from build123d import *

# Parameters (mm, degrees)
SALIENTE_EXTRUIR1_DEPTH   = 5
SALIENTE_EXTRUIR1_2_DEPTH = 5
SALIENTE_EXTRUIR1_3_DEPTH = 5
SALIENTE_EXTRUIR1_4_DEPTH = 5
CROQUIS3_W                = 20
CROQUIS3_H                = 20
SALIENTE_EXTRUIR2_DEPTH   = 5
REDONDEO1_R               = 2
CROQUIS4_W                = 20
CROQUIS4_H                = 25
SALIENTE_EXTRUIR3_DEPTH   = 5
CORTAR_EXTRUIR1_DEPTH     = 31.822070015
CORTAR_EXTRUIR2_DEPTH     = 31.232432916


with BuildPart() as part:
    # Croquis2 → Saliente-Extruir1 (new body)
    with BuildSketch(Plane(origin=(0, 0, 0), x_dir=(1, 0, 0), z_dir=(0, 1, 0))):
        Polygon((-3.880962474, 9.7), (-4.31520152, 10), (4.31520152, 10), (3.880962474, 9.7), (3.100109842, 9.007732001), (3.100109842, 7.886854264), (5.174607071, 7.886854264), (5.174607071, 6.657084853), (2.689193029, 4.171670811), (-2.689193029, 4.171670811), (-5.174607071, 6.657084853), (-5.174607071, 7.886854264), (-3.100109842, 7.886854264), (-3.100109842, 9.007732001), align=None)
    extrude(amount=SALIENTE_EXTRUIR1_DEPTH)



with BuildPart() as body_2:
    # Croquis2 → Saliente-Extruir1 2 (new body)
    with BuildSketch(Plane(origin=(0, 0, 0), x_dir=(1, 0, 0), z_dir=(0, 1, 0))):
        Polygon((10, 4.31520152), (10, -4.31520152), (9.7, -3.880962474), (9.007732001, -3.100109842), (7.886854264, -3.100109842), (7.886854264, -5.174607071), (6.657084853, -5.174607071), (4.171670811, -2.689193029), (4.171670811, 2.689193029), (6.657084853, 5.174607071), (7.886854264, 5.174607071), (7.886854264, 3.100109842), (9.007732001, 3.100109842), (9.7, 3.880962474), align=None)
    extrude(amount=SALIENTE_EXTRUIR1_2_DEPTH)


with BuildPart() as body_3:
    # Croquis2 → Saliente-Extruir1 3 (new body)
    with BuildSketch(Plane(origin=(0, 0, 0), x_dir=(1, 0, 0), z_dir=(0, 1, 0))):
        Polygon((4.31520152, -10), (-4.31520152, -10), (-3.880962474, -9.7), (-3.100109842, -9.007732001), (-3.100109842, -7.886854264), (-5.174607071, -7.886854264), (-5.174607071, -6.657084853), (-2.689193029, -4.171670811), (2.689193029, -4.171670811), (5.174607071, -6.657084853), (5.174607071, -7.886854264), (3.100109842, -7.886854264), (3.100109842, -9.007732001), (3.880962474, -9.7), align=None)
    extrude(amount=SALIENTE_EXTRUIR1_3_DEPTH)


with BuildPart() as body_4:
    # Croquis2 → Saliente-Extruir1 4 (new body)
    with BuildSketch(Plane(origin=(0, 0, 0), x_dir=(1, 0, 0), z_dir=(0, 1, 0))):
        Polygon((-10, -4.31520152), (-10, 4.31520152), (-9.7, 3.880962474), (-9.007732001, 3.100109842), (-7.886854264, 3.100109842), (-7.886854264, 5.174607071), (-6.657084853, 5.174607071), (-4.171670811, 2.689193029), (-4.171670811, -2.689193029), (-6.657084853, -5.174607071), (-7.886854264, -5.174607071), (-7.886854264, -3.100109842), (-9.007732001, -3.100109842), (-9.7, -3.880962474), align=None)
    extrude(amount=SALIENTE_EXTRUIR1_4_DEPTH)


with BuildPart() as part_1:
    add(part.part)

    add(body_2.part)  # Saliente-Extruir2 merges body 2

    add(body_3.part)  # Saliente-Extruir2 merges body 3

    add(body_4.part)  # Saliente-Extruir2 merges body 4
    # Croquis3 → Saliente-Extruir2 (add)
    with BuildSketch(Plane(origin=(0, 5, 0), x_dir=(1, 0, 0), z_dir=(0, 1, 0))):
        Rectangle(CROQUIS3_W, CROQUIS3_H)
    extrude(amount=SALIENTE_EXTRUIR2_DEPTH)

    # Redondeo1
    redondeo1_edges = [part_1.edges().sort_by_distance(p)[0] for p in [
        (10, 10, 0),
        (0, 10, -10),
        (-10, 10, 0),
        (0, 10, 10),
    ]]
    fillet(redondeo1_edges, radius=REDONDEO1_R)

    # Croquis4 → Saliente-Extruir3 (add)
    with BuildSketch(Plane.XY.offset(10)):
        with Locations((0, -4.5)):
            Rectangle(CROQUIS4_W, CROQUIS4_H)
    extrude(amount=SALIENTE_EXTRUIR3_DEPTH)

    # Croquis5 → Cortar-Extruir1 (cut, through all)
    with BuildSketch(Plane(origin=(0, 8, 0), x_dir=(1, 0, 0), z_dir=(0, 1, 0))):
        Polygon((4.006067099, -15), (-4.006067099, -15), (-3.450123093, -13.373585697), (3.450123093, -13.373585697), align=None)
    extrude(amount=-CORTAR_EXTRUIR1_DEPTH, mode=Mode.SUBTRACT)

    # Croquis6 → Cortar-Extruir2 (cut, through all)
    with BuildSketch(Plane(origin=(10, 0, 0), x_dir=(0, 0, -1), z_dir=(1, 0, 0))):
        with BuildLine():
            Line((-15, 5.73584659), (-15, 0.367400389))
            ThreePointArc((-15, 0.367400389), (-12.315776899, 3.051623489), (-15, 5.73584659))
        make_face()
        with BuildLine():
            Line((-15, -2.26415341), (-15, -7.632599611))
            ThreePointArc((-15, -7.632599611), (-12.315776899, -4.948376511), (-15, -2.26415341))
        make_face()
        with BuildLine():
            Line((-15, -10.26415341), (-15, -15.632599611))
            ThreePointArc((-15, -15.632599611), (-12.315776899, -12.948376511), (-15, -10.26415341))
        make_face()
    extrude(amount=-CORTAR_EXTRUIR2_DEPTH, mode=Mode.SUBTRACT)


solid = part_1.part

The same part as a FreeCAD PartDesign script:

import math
import FreeCAD as App
import Part
import Sketcher

V = App.Vector
Q = App.Units.Quantity


def edges_at(feature, points):
    """Names of the edges that pass closest to the given points."""
    edges = feature.Shape.Edges
    near = lambda p: min(range(len(edges)), key=lambda i: edges[i].distToShape(Part.Vertex(*p))[0])
    return sorted({f"Edge{near(p) + 1}" for p in points})

doc = App.newDocument("Part")
params = doc.addObject("Spreadsheet::Sheet", "Params")
for row, (alias, value) in enumerate([
    ("pad1_length", "5 mm"),
    ("pad2_length", "5 mm"),
    ("pad3_length", "5 mm"),
    ("pad4_length", "5 mm"),
    ("sketch5_width", "20 mm"),
    ("pad5_length", "5 mm"),
    ("fillet_radius", "2 mm"),
    ("sketch6_width", "20 mm"),
    ("sketch6_height", "25 mm"),
    ("pad6_length", "5 mm"),
], start=1):
    params.set(f"A{row}", alias)
    params.set(f"B{row}", "=" + value)
    params.setAlias(f"B{row}", alias)

body = doc.addObject("PartDesign::Body", "Body")

# Sketch on XZ plane
sketch1 = body.newObject("Sketcher::SketchObject", "Sketch")
sketch1.AttachmentSupport = (doc.getObject("XZ_Plane"), [""])
sketch1.MapMode = "FlatFace"
sketch1.addGeometry(Part.LineSegment(V(-4.315202, -10, 0), V(-3.880962, -9.7, 0)), False)
sketch1.addGeometry(Part.LineSegment(V(-3.880962, -9.7, 0), V(-3.10011, -9.007732, 0)), False)
sketch1.addGeometry(Part.LineSegment(V(-3.10011, -9.007732, 0), V(-3.10011, -7.886854, 0)), False)
sketch1.addGeometry(Part.LineSegment(V(-3.10011, -7.886854, 0), V(-5.174607, -7.886854, 0)), False)
sketch1.addGeometry(Part.LineSegment(V(-5.174607, -7.886854, 0), V(-5.174607, -6.657085, 0)), False)
sketch1.addGeometry(Part.LineSegment(V(-5.174607, -6.657085, 0), V(-2.689193, -4.171671, 0)), False)
sketch1.addGeometry(Part.LineSegment(V(-2.689193, -4.171671, 0), V(2.689193, -4.171671, 0)), False)
sketch1.addGeometry(Part.LineSegment(V(2.689193, -4.171671, 0), V(5.174607, -6.657085, 0)), False)
sketch1.addGeometry(Part.LineSegment(V(5.174607, -6.657085, 0), V(5.174607, -7.886854, 0)), False)
sketch1.addGeometry(Part.LineSegment(V(5.174607, -7.886854, 0), V(3.10011, -7.886854, 0)), False)
sketch1.addGeometry(Part.LineSegment(V(3.10011, -7.886854, 0), V(3.10011, -9.007732, 0)), False)
sketch1.addGeometry(Part.LineSegment(V(3.10011, -9.007732, 0), V(3.880962, -9.7, 0)), False)
sketch1.addGeometry(Part.LineSegment(V(3.880962, -9.7, 0), V(4.315202, -10, 0)), False)
sketch1.addGeometry(Part.LineSegment(V(4.315202, -10, 0), V(-4.315202, -10, 0)), False)
sketch1.addConstraint(Sketcher.Constraint("Coincident", 0, 2, 1, 1))
sketch1.addConstraint(Sketcher.Constraint("Coincident", 1, 2, 2, 1))
sketch1.addConstraint(Sketcher.Constraint("Coincident", 2, 2, 3, 1))
sketch1.addConstraint(Sketcher.Constraint("Coincident", 3, 2, 4, 1))
sketch1.addConstraint(Sketcher.Constraint("Coincident", 4, 2, 5, 1))
sketch1.addConstraint(Sketcher.Constraint("Coincident", 5, 2, 6, 1))
sketch1.addConstraint(Sketcher.Constraint("Coincident", 6, 2, 7, 1))
sketch1.addConstraint(Sketcher.Constraint("Coincident", 7, 2, 8, 1))
sketch1.addConstraint(Sketcher.Constraint("Coincident", 8, 2, 9, 1))
sketch1.addConstraint(Sketcher.Constraint("Coincident", 9, 2, 10, 1))
sketch1.addConstraint(Sketcher.Constraint("Coincident", 10, 2, 11, 1))
sketch1.addConstraint(Sketcher.Constraint("Coincident", 11, 2, 12, 1))
sketch1.addConstraint(Sketcher.Constraint("Coincident", 12, 2, 13, 1))
sketch1.addConstraint(Sketcher.Constraint("Coincident", 13, 2, 0, 1))
sketch1.addConstraint(Sketcher.Constraint("Vertical", 2))
sketch1.addConstraint(Sketcher.Constraint("Horizontal", 3))
sketch1.addConstraint(Sketcher.Constraint("Vertical", 4))
sketch1.addConstraint(Sketcher.Constraint("Horizontal", 6))
sketch1.addConstraint(Sketcher.Constraint("Vertical", 8))
sketch1.addConstraint(Sketcher.Constraint("Horizontal", 9))
sketch1.addConstraint(Sketcher.Constraint("Vertical", 10))
sketch1.addConstraint(Sketcher.Constraint("Horizontal", 13))
sketch1.addConstraint(Sketcher.Constraint("Symmetric", 4, 2, 7, 2, -2))
sketch1.addConstraint(Sketcher.Constraint("Symmetric", 2, 2, 9, 2, -2))
sketch1.addConstraint(Sketcher.Constraint("Symmetric", 0, 2, 11, 2, -2))
sketch1.addConstraint(Sketcher.Constraint("Perpendicular", 5, 7))
sketch1.addConstraint(Sketcher.Constraint("Horizontal", 1, 2, 10, 2))
sketch1.addConstraint(Sketcher.Constraint("Equal", 5, 7))
sketch1.addConstraint(Sketcher.Constraint("Equal", 0, 12))
sketch1.addConstraint(Sketcher.Constraint("DistanceY", 12, 2, -1, 1, Q("10 mm")))
sketch1.addConstraint(Sketcher.Constraint("DistanceY", 0, 2, -1, 1, Q("9.7 mm")))
sketch1.addConstraint(Sketcher.Constraint("DistanceY", 4, 1, 4, 2, Q("1.229769 mm")))
sketch1.addConstraint(Sketcher.Constraint("DistanceX", -1, 1, 12, 2, Q("4.315202 mm")))
sketch1.addConstraint(Sketcher.Constraint("DistanceX", 4, 2, 6, 2, Q("7.8638 mm")))
sketch1.addConstraint(Sketcher.Constraint("Distance", 0, Q("0.527791 mm")))
sketch1.addConstraint(Sketcher.Constraint("DistanceX", 3, 2, 3, 1, Q("2.074497 mm")))
sketch1.addConstraint(Sketcher.Constraint("DistanceX", 6, 1, 6, 2, Q("5.378386 mm")))
sketch1.addConstraint(Sketcher.Constraint("DistanceY", 2, 1, 2, 2, Q("1.120878 mm")))
sketch1.addConstraint(Sketcher.Constraint("DistanceY", 5, 2, -1, 1, Q("4.171671 mm")))
pad1 = body.newObject("PartDesign::Pad", "Pad")
pad1.Profile = sketch1
pad1.setExpression("Length", "Params.pad1_length")
pad1.Reversed = True
body2 = doc.addObject("PartDesign::Body", "Body001")

# Sketch on XZ plane
sketch2 = body2.newObject("Sketcher::SketchObject", "Sketch001")
sketch2.AttachmentSupport = (doc.getObject("XZ_Plane001"), [""])
sketch2.MapMode = "FlatFace"
sketch2.addGeometry(Part.LineSegment(V(10, 4.315202, 0), V(10, -4.315202, 0)), False)
sketch2.addGeometry(Part.LineSegment(V(10, -4.315202, 0), V(9.7, -3.880962, 0)), False)
sketch2.addGeometry(Part.LineSegment(V(9.7, -3.880962, 0), V(9.007732, -3.10011, 0)), False)
sketch2.addGeometry(Part.LineSegment(V(9.007732, -3.10011, 0), V(7.886854, -3.10011, 0)), False)
sketch2.addGeometry(Part.LineSegment(V(7.886854, -3.10011, 0), V(7.886854, -5.174607, 0)), False)
sketch2.addGeometry(Part.LineSegment(V(7.886854, -5.174607, 0), V(6.657085, -5.174607, 0)), False)
sketch2.addGeometry(Part.LineSegment(V(6.657085, -5.174607, 0), V(4.171671, -2.689193, 0)), False)
sketch2.addGeometry(Part.LineSegment(V(4.171671, -2.689193, 0), V(4.171671, 2.689193, 0)), False)
sketch2.addGeometry(Part.LineSegment(V(4.171671, 2.689193, 0), V(6.657085, 5.174607, 0)), False)
sketch2.addGeometry(Part.LineSegment(V(6.657085, 5.174607, 0), V(7.886854, 5.174607, 0)), False)
sketch2.addGeometry(Part.LineSegment(V(7.886854, 5.174607, 0), V(7.886854, 3.10011, 0)), False)
sketch2.addGeometry(Part.LineSegment(V(7.886854, 3.10011, 0), V(9.007732, 3.10011, 0)), False)
sketch2.addGeometry(Part.LineSegment(V(9.007732, 3.10011, 0), V(9.7, 3.880962, 0)), False)
sketch2.addGeometry(Part.LineSegment(V(9.7, 3.880962, 0), V(10, 4.315202, 0)), False)
sketch2.addConstraint(Sketcher.Constraint("Coincident", 0, 2, 1, 1))
sketch2.addConstraint(Sketcher.Constraint("Coincident", 1, 2, 2, 1))
sketch2.addConstraint(Sketcher.Constraint("Coincident", 2, 2, 3, 1))
sketch2.addConstraint(Sketcher.Constraint("Coincident", 3, 2, 4, 1))
sketch2.addConstraint(Sketcher.Constraint("Coincident", 4, 2, 5, 1))
sketch2.addConstraint(Sketcher.Constraint("Coincident", 5, 2, 6, 1))
sketch2.addConstraint(Sketcher.Constraint("Coincident", 6, 2, 7, 1))
sketch2.addConstraint(Sketcher.Constraint("Coincident", 7, 2, 8, 1))
sketch2.addConstraint(Sketcher.Constraint("Coincident", 8, 2, 9, 1))
sketch2.addConstraint(Sketcher.Constraint("Coincident", 9, 2, 10, 1))
sketch2.addConstraint(Sketcher.Constraint("Coincident", 10, 2, 11, 1))
sketch2.addConstraint(Sketcher.Constraint("Coincident", 11, 2, 12, 1))
sketch2.addConstraint(Sketcher.Constraint("Coincident", 12, 2, 13, 1))
sketch2.addConstraint(Sketcher.Constraint("Coincident", 13, 2, 0, 1))
sketch2.addConstraint(Sketcher.Constraint("Vertical", 0))
sketch2.addConstraint(Sketcher.Constraint("Horizontal", 3))
sketch2.addConstraint(Sketcher.Constraint("Vertical", 4))
sketch2.addConstraint(Sketcher.Constraint("Horizontal", 5))
sketch2.addConstraint(Sketcher.Constraint("Vertical", 7))
sketch2.addConstraint(Sketcher.Constraint("Horizontal", 9))
sketch2.addConstraint(Sketcher.Constraint("Vertical", 10))
sketch2.addConstraint(Sketcher.Constraint("Horizontal", 11))
sketch2.addConstraint(Sketcher.Constraint("Symmetric", 5, 2, 8, 2, -1))
sketch2.addConstraint(Sketcher.Constraint("Symmetric", 3, 2, 10, 2, -1))
sketch2.addConstraint(Sketcher.Constraint("Symmetric", 1, 2, 12, 2, -1))
sketch2.addConstraint(Sketcher.Constraint("Perpendicular", 6, 8))
sketch2.addConstraint(Sketcher.Constraint("Vertical", 2, 2, 11, 2))
sketch2.addConstraint(Sketcher.Constraint("Equal", 6, 8))
sketch2.addConstraint(Sketcher.Constraint("Equal", 1, 13))
sketch2.addConstraint(Sketcher.Constraint("DistanceX", -1, 1, 0, 2, Q("10 mm")))
sketch2.addConstraint(Sketcher.Constraint("DistanceX", -1, 1, 1, 2, Q("9.7 mm")))
sketch2.addConstraint(Sketcher.Constraint("DistanceX", 5, 2, 5, 1, Q("1.229769 mm")))
sketch2.addConstraint(Sketcher.Constraint("DistanceY", 0, 2, -1, 1, Q("4.315202 mm")))
sketch2.addConstraint(Sketcher.Constraint("DistanceY", 5, 2, 7, 2, Q("7.8638 mm")))
sketch2.addConstraint(Sketcher.Constraint("Distance", 1, Q("0.527791 mm")))
sketch2.addConstraint(Sketcher.Constraint("DistanceX", 3, 2, 3, 1, Q("1.120878 mm")))
sketch2.addConstraint(Sketcher.Constraint("DistanceY", 4, 2, 4, 1, Q("2.074497 mm")))
sketch2.addConstraint(Sketcher.Constraint("DistanceY", 7, 1, 7, 2, Q("5.378386 mm")))
sketch2.addConstraint(Sketcher.Constraint("DistanceX", -1, 1, 6, 2, Q("4.171671 mm")))
pad2 = body2.newObject("PartDesign::Pad", "Pad001")
pad2.Profile = sketch2
pad2.setExpression("Length", "Params.pad2_length")
pad2.Reversed = True
body3 = doc.addObject("PartDesign::Body", "Body002")

# Sketch on XZ plane
sketch3 = body3.newObject("Sketcher::SketchObject", "Sketch002")
sketch3.AttachmentSupport = (doc.getObject("XZ_Plane002"), [""])
sketch3.MapMode = "FlatFace"
sketch3.addGeometry(Part.LineSegment(V(-4.315202, 10, 0), V(4.315202, 10, 0)), False)
sketch3.addGeometry(Part.LineSegment(V(4.315202, 10, 0), V(3.880962, 9.7, 0)), False)
sketch3.addGeometry(Part.LineSegment(V(3.880962, 9.7, 0), V(3.10011, 9.007732, 0)), False)
sketch3.addGeometry(Part.LineSegment(V(3.10011, 9.007732, 0), V(3.10011, 7.886854, 0)), False)
sketch3.addGeometry(Part.LineSegment(V(3.10011, 7.886854, 0), V(5.174607, 7.886854, 0)), False)
sketch3.addGeometry(Part.LineSegment(V(5.174607, 7.886854, 0), V(5.174607, 6.657085, 0)), False)
sketch3.addGeometry(Part.LineSegment(V(5.174607, 6.657085, 0), V(2.689193, 4.171671, 0)), False)
sketch3.addGeometry(Part.LineSegment(V(2.689193, 4.171671, 0), V(-2.689193, 4.171671, 0)), False)
sketch3.addGeometry(Part.LineSegment(V(-2.689193, 4.171671, 0), V(-5.174607, 6.657085, 0)), False)
sketch3.addGeometry(Part.LineSegment(V(-5.174607, 6.657085, 0), V(-5.174607, 7.886854, 0)), False)
sketch3.addGeometry(Part.LineSegment(V(-5.174607, 7.886854, 0), V(-3.10011, 7.886854, 0)), False)
sketch3.addGeometry(Part.LineSegment(V(-3.10011, 7.886854, 0), V(-3.10011, 9.007732, 0)), False)
sketch3.addGeometry(Part.LineSegment(V(-3.10011, 9.007732, 0), V(-3.880962, 9.7, 0)), False)
sketch3.addGeometry(Part.LineSegment(V(-3.880962, 9.7, 0), V(-4.315202, 10, 0)), False)
sketch3.addConstraint(Sketcher.Constraint("Coincident", 0, 2, 1, 1))
sketch3.addConstraint(Sketcher.Constraint("Coincident", 1, 2, 2, 1))
sketch3.addConstraint(Sketcher.Constraint("Coincident", 2, 2, 3, 1))
sketch3.addConstraint(Sketcher.Constraint("Coincident", 3, 2, 4, 1))
sketch3.addConstraint(Sketcher.Constraint("Coincident", 4, 2, 5, 1))
sketch3.addConstraint(Sketcher.Constraint("Coincident", 5, 2, 6, 1))
sketch3.addConstraint(Sketcher.Constraint("Coincident", 6, 2, 7, 1))
sketch3.addConstraint(Sketcher.Constraint("Coincident", 7, 2, 8, 1))
sketch3.addConstraint(Sketcher.Constraint("Coincident", 8, 2, 9, 1))
sketch3.addConstraint(Sketcher.Constraint("Coincident", 9, 2, 10, 1))
sketch3.addConstraint(Sketcher.Constraint("Coincident", 10, 2, 11, 1))
sketch3.addConstraint(Sketcher.Constraint("Coincident", 11, 2, 12, 1))
sketch3.addConstraint(Sketcher.Constraint("Coincident", 12, 2, 13, 1))
sketch3.addConstraint(Sketcher.Constraint("Coincident", 13, 2, 0, 1))
sketch3.addConstraint(Sketcher.Constraint("Horizontal", 0))
sketch3.addConstraint(Sketcher.Constraint("Vertical", 3))
sketch3.addConstraint(Sketcher.Constraint("Horizontal", 4))
sketch3.addConstraint(Sketcher.Constraint("Vertical", 5))
sketch3.addConstraint(Sketcher.Constraint("Horizontal", 7))
sketch3.addConstraint(Sketcher.Constraint("Vertical", 9))
sketch3.addConstraint(Sketcher.Constraint("Horizontal", 10))
sketch3.addConstraint(Sketcher.Constraint("Vertical", 11))
sketch3.addConstraint(Sketcher.Constraint("Symmetric", 5, 2, 8, 2, -2))
sketch3.addConstraint(Sketcher.Constraint("Symmetric", 3, 2, 10, 2, -2))
sketch3.addConstraint(Sketcher.Constraint("Symmetric", 1, 2, 12, 2, -2))
sketch3.addConstraint(Sketcher.Constraint("Perpendicular", 6, 8))
sketch3.addConstraint(Sketcher.Constraint("Horizontal", 2, 2, 11, 2))
sketch3.addConstraint(Sketcher.Constraint("Equal", 6, 8))
sketch3.addConstraint(Sketcher.Constraint("Equal", 1, 13))
sketch3.addConstraint(Sketcher.Constraint("DistanceY", -1, 1, 0, 2, Q("10 mm")))
sketch3.addConstraint(Sketcher.Constraint("DistanceY", -1, 1, 1, 2, Q("9.7 mm")))
sketch3.addConstraint(Sketcher.Constraint("DistanceY", 5, 2, 5, 1, Q("1.229769 mm")))
sketch3.addConstraint(Sketcher.Constraint("DistanceX", -1, 1, 0, 2, Q("4.315202 mm")))
sketch3.addConstraint(Sketcher.Constraint("DistanceX", 7, 2, 5, 2, Q("7.8638 mm")))
sketch3.addConstraint(Sketcher.Constraint("Distance", 1, Q("0.527791 mm")))
sketch3.addConstraint(Sketcher.Constraint("DistanceX", 4, 1, 4, 2, Q("2.074497 mm")))
sketch3.addConstraint(Sketcher.Constraint("DistanceX", 7, 2, 7, 1, Q("5.378386 mm")))
sketch3.addConstraint(Sketcher.Constraint("DistanceY", 3, 2, 3, 1, Q("1.120878 mm")))
sketch3.addConstraint(Sketcher.Constraint("DistanceY", -1, 1, 6, 2, Q("4.171671 mm")))
pad3 = body3.newObject("PartDesign::Pad", "Pad002")
pad3.Profile = sketch3
pad3.setExpression("Length", "Params.pad3_length")
pad3.Reversed = True
body4 = doc.addObject("PartDesign::Body", "Body003")

# Sketch on XZ plane
sketch4 = body4.newObject("Sketcher::SketchObject", "Sketch003")
sketch4.AttachmentSupport = (doc.getObject("XZ_Plane003"), [""])
sketch4.MapMode = "FlatFace"
sketch4.addGeometry(Part.LineSegment(V(-10, -4.315202, 0), V(-10, 4.315202, 0)), False)
sketch4.addGeometry(Part.LineSegment(V(-10, 4.315202, 0), V(-9.7, 3.880962, 0)), False)
sketch4.addGeometry(Part.LineSegment(V(-9.7, 3.880962, 0), V(-9.007732, 3.10011, 0)), False)
sketch4.addGeometry(Part.LineSegment(V(-9.007732, 3.10011, 0), V(-7.886854, 3.10011, 0)), False)
sketch4.addGeometry(Part.LineSegment(V(-7.886854, 3.10011, 0), V(-7.886854, 5.174607, 0)), False)
sketch4.addGeometry(Part.LineSegment(V(-7.886854, 5.174607, 0), V(-6.657085, 5.174607, 0)), False)
sketch4.addGeometry(Part.LineSegment(V(-6.657085, 5.174607, 0), V(-4.171671, 2.689193, 0)), False)
sketch4.addGeometry(Part.LineSegment(V(-4.171671, 2.689193, 0), V(-4.171671, -2.689193, 0)), False)
sketch4.addGeometry(Part.LineSegment(V(-4.171671, -2.689193, 0), V(-6.657085, -5.174607, 0)), False)
sketch4.addGeometry(Part.LineSegment(V(-6.657085, -5.174607, 0), V(-7.886854, -5.174607, 0)), False)
sketch4.addGeometry(Part.LineSegment(V(-7.886854, -5.174607, 0), V(-7.886854, -3.10011, 0)), False)
sketch4.addGeometry(Part.LineSegment(V(-7.886854, -3.10011, 0), V(-9.007732, -3.10011, 0)), False)
sketch4.addGeometry(Part.LineSegment(V(-9.007732, -3.10011, 0), V(-9.7, -3.880962, 0)), False)
sketch4.addGeometry(Part.LineSegment(V(-9.7, -3.880962, 0), V(-10, -4.315202, 0)), False)
sketch4.addConstraint(Sketcher.Constraint("Coincident", 0, 2, 1, 1))
sketch4.addConstraint(Sketcher.Constraint("Coincident", 1, 2, 2, 1))
sketch4.addConstraint(Sketcher.Constraint("Coincident", 2, 2, 3, 1))
sketch4.addConstraint(Sketcher.Constraint("Coincident", 3, 2, 4, 1))
sketch4.addConstraint(Sketcher.Constraint("Coincident", 4, 2, 5, 1))
sketch4.addConstraint(Sketcher.Constraint("Coincident", 5, 2, 6, 1))
sketch4.addConstraint(Sketcher.Constraint("Coincident", 6, 2, 7, 1))
sketch4.addConstraint(Sketcher.Constraint("Coincident", 7, 2, 8, 1))
sketch4.addConstraint(Sketcher.Constraint("Coincident", 8, 2, 9, 1))
sketch4.addConstraint(Sketcher.Constraint("Coincident", 9, 2, 10, 1))
sketch4.addConstraint(Sketcher.Constraint("Coincident", 10, 2, 11, 1))
sketch4.addConstraint(Sketcher.Constraint("Coincident", 11, 2, 12, 1))
sketch4.addConstraint(Sketcher.Constraint("Coincident", 12, 2, 13, 1))
sketch4.addConstraint(Sketcher.Constraint("Coincident", 13, 2, 0, 1))
sketch4.addConstraint(Sketcher.Constraint("Vertical", 0))
sketch4.addConstraint(Sketcher.Constraint("Horizontal", 3))
sketch4.addConstraint(Sketcher.Constraint("Vertical", 4))
sketch4.addConstraint(Sketcher.Constraint("Horizontal", 5))
sketch4.addConstraint(Sketcher.Constraint("Vertical", 7))
sketch4.addConstraint(Sketcher.Constraint("Horizontal", 9))
sketch4.addConstraint(Sketcher.Constraint("Vertical", 10))
sketch4.addConstraint(Sketcher.Constraint("Horizontal", 11))
sketch4.addConstraint(Sketcher.Constraint("Symmetric", 5, 2, 8, 2, -1))
sketch4.addConstraint(Sketcher.Constraint("Symmetric", 3, 2, 10, 2, -1))
sketch4.addConstraint(Sketcher.Constraint("Symmetric", 1, 2, 12, 2, -1))
sketch4.addConstraint(Sketcher.Constraint("Perpendicular", 6, 8))
sketch4.addConstraint(Sketcher.Constraint("Vertical", 2, 2, 11, 2))
sketch4.addConstraint(Sketcher.Constraint("Equal", 6, 8))
sketch4.addConstraint(Sketcher.Constraint("Equal", 1, 13))
sketch4.addConstraint(Sketcher.Constraint("DistanceX", 0, 2, -1, 1, Q("10 mm")))
sketch4.addConstraint(Sketcher.Constraint("DistanceX", 1, 2, -1, 1, Q("9.7 mm")))
sketch4.addConstraint(Sketcher.Constraint("DistanceX", 5, 1, 5, 2, Q("1.229769 mm")))
sketch4.addConstraint(Sketcher.Constraint("DistanceY", -1, 1, 0, 2, Q("4.315202 mm")))
sketch4.addConstraint(Sketcher.Constraint("DistanceY", 7, 2, 5, 2, Q("7.8638 mm")))
sketch4.addConstraint(Sketcher.Constraint("Distance", 1, Q("0.527791 mm")))
sketch4.addConstraint(Sketcher.Constraint("DistanceX", 3, 1, 3, 2, Q("1.120878 mm")))
sketch4.addConstraint(Sketcher.Constraint("DistanceY", 4, 1, 4, 2, Q("2.074497 mm")))
sketch4.addConstraint(Sketcher.Constraint("DistanceY", 7, 2, 7, 1, Q("5.378386 mm")))
sketch4.addConstraint(Sketcher.Constraint("DistanceX", 6, 2, -1, 1, Q("4.171671 mm")))
pad4 = body4.newObject("PartDesign::Pad", "Pad003")
pad4.Profile = sketch4
pad4.setExpression("Length", "Params.pad4_length")
pad4.Reversed = True
body.AllowCompound = True
doc.recompute()

boolean = body.newObject("PartDesign::Boolean", "Boolean")
boolean.Type = "Fuse"
boolean.addObjects([body2])
doc.recompute()

boolean2 = body.newObject("PartDesign::Boolean", "Boolean001")
boolean2.Type = "Fuse"
boolean2.addObjects([body3])
doc.recompute()

boolean3 = body.newObject("PartDesign::Boolean", "Boolean002")
boolean3.Type = "Fuse"
boolean3.addObjects([body4])

# Sketch on XZ plane
sketch5 = body.newObject("Sketcher::SketchObject", "Sketch004")
sketch5.AttachmentSupport = (doc.getObject("XZ_Plane"), [""])
sketch5.MapMode = "FlatFace"
sketch5.AttachmentOffset = App.Placement(V(0, 0, -5), App.Rotation())
sketch5.addGeometry(Part.LineSegment(V(-10, -10, 0), V(-10, 10, 0)), False)
sketch5.addGeometry(Part.LineSegment(V(-10, 10, 0), V(10, 10, 0)), False)
sketch5.addGeometry(Part.LineSegment(V(10, 10, 0), V(10, -10, 0)), False)
sketch5.addGeometry(Part.LineSegment(V(10, -10, 0), V(-10, -10, 0)), False)
sketch5.addConstraint(Sketcher.Constraint("Coincident", 0, 2, 1, 1))
sketch5.addConstraint(Sketcher.Constraint("Coincident", 1, 2, 2, 1))
sketch5.addConstraint(Sketcher.Constraint("Coincident", 2, 2, 3, 1))
sketch5.addConstraint(Sketcher.Constraint("Coincident", 3, 2, 0, 1))
sketch5.addConstraint(Sketcher.Constraint("Vertical", 0))
sketch5.addConstraint(Sketcher.Constraint("Horizontal", 1))
sketch5.addConstraint(Sketcher.Constraint("Vertical", 2))
sketch5.addConstraint(Sketcher.Constraint("Horizontal", 3))
sketch5.addConstraint(Sketcher.Constraint("Symmetric", 0, 2, 2, 2, -1, 1))
sketch5.addConstraint(Sketcher.Constraint("Equal", 3, 0))
sketch5.addConstraint(Sketcher.Constraint("DistanceX", 1, 1, 1, 2, Q("20 mm")))
sketch5.setExpression("Constraints[10]", "Params.sketch5_width")
pad5 = body.newObject("PartDesign::Pad", "Pad004")
pad5.Profile = sketch5
pad5.setExpression("Length", "Params.pad5_length")
pad5.Reversed = True
doc.recompute()

fillet = body.newObject("PartDesign::Fillet", "Fillet")
fillet.Base = (pad5, edges_at(pad5, [
    (10, 10, 0),
    (0, 10, -10),
    (-10, 10, 0),
    (0, 10, 10),
]))
fillet.setExpression("Radius", "Params.fillet_radius")

# Sketch on XY plane
sketch6 = body.newObject("Sketcher::SketchObject", "Sketch005")
sketch6.AttachmentSupport = (doc.getObject("XY_Plane"), [""])
sketch6.MapMode = "FlatFace"
sketch6.AttachmentOffset = App.Placement(V(0, 0, 10), App.Rotation())
sketch6.addGeometry(Part.LineSegment(V(-10, 8, 0), V(-10, -17, 0)), False)
sketch6.addGeometry(Part.LineSegment(V(-10, -17, 0), V(10, -17, 0)), False)
sketch6.addGeometry(Part.LineSegment(V(10, -17, 0), V(10, 8, 0)), False)
sketch6.addGeometry(Part.LineSegment(V(10, 8, 0), V(-10, 8, 0)), False)
sketch6.addConstraint(Sketcher.Constraint("Coincident", 0, 2, 1, 1))
sketch6.addConstraint(Sketcher.Constraint("Coincident", 1, 2, 2, 1))
sketch6.addConstraint(Sketcher.Constraint("Coincident", 2, 2, 3, 1))
sketch6.addConstraint(Sketcher.Constraint("Coincident", 3, 2, 0, 1))
sketch6.addConstraint(Sketcher.Constraint("Vertical", 0))
sketch6.addConstraint(Sketcher.Constraint("Horizontal", 1))
sketch6.addConstraint(Sketcher.Constraint("Vertical", 2))
sketch6.addConstraint(Sketcher.Constraint("Horizontal", 3))
sketch6.addConstraint(Sketcher.Constraint("DistanceX", 1, 1, 1, 2, Q("20 mm")))
sketch6.addConstraint(Sketcher.Constraint("DistanceY", 0, 2, 0, 1, Q("25 mm")))
sketch6.addConstraint(Sketcher.Constraint("DistanceX", 0, 2, -1, 1, Q("10 mm")))
sketch6.addConstraint(Sketcher.Constraint("DistanceY", 0, 2, -1, 1, Q("17 mm")))
sketch6.setExpression("Constraints[8]", "Params.sketch6_width")
sketch6.setExpression("Constraints[9]", "Params.sketch6_height")
pad6 = body.newObject("PartDesign::Pad", "Pad005")
pad6.Profile = sketch6
pad6.setExpression("Length", "Params.pad6_length")

# Sketch on XZ plane
sketch7 = body.newObject("Sketcher::SketchObject", "Sketch006")
sketch7.AttachmentSupport = (doc.getObject("XZ_Plane"), [""])
sketch7.MapMode = "FlatFace"
sketch7.AttachmentOffset = App.Placement(V(0, 0, -8), App.Rotation())
sketch7.addGeometry(Part.LineSegment(V(-4.006067, 15, 0), V(4.006067, 15, 0)), False)
sketch7.addGeometry(Part.LineSegment(V(4.006067, 15, 0), V(3.450123, 13.373586, 0)), False)
sketch7.addGeometry(Part.LineSegment(V(3.450123, 13.373586, 0), V(-3.450123, 13.373586, 0)), False)
sketch7.addGeometry(Part.LineSegment(V(-3.450123, 13.373586, 0), V(-4.006067, 15, 0)), False)
sketch7.addConstraint(Sketcher.Constraint("Coincident", 0, 2, 1, 1))
sketch7.addConstraint(Sketcher.Constraint("Coincident", 1, 2, 2, 1))
sketch7.addConstraint(Sketcher.Constraint("Coincident", 2, 2, 3, 1))
sketch7.addConstraint(Sketcher.Constraint("Coincident", 3, 2, 0, 1))
sketch7.addConstraint(Sketcher.Constraint("Horizontal", 0))
sketch7.addConstraint(Sketcher.Constraint("Horizontal", 2))
sketch7.addConstraint(Sketcher.Constraint("Equal", 1, 3))
sketch7.addConstraint(Sketcher.Constraint("DistanceY", -1, 1, 0, 2, Q("15 mm")))
sketch7.addConstraint(Sketcher.Constraint("DistanceX", 0, 1, 0, 2, Q("8.012134 mm")))
sketch7.addConstraint(Sketcher.Constraint("DistanceX", 2, 2, 2, 1, Q("6.900246 mm")))
sketch7.addConstraint(Sketcher.Constraint("Distance", 1, Q("1.718807 mm")))
sketch7.addConstraint(Sketcher.Constraint("DistanceX", -1, 1, 0, 2, Q("4.006067 mm")))
pocket1 = body.newObject("PartDesign::Pocket", "Pocket")
pocket1.Profile = sketch7
pocket1.Type = "ThroughAll"
pocket1.Reversed = True

# Sketch on YZ plane
sketch8 = body.newObject("Sketcher::SketchObject", "Sketch007")
sketch8.AttachmentSupport = (doc.getObject("YZ_Plane"), [""])
sketch8.MapMode = "FlatFace"
sketch8.AttachmentOffset = App.Placement(V(0, 0, 10), App.Rotation())
sketch8.addGeometry(Part.LineSegment(V(5.735847, 15, 0), V(0.3674, 15, 0)), False)
sketch8.addGeometry(Part.ArcOfCircle(Part.Circle(V(3.051623, 15, 0), V(0, 0, 1), 2.684223), math.radians(180), math.radians(360)), False)
sketch8.addGeometry(Part.LineSegment(V(-2.264153, 15, 0), V(-7.6326, 15, 0)), False)
sketch8.addGeometry(Part.ArcOfCircle(Part.Circle(V(-4.948377, 15, 0), V(0, 0, 1), 2.684223), math.radians(180), math.radians(360)), False)
sketch8.addGeometry(Part.LineSegment(V(-10.264153, 15, 0), V(-15.6326, 15, 0)), False)
sketch8.addGeometry(Part.ArcOfCircle(Part.Circle(V(-12.948377, 15, 0), V(0, 0, 1), 2.684223), math.radians(180), math.radians(360)), False)
sketch8.addConstraint(Sketcher.Constraint("Coincident", 0, 1, 1, 2))
sketch8.addConstraint(Sketcher.Constraint("Coincident", 1, 1, 0, 2))
sketch8.addConstraint(Sketcher.Constraint("Coincident", 2, 1, 3, 2))
sketch8.addConstraint(Sketcher.Constraint("Coincident", 3, 1, 2, 2))
sketch8.addConstraint(Sketcher.Constraint("Coincident", 4, 1, 5, 2))
sketch8.addConstraint(Sketcher.Constraint("Coincident", 5, 1, 4, 2))
sketch8.addConstraint(Sketcher.Constraint("Horizontal", 0))
sketch8.addConstraint(Sketcher.Constraint("Horizontal", 2))
sketch8.addConstraint(Sketcher.Constraint("Horizontal", 4))
sketch8.addConstraint(Sketcher.Constraint("Equal", 1, 3))
sketch8.addConstraint(Sketcher.Constraint("Equal", 3, 5))
sketch8.addConstraint(Sketcher.Constraint("Horizontal", 1, 3, 3, 3))
sketch8.addConstraint(Sketcher.Constraint("Horizontal", 3, 3, 5, 3))
sketch8.addConstraint(Sketcher.Constraint("Horizontal", 5, 3, 0, 1))
sketch8.addConstraint(Sketcher.Constraint("Horizontal", 1, 1, 2, 1))
sketch8.addConstraint(Sketcher.Constraint("Horizontal", 3, 1, 4, 1))
sketch8.addConstraint(Sketcher.Constraint("DistanceY", -1, 1, 1, 3, Q("15 mm")))
sketch8.addConstraint(Sketcher.Constraint("DistanceX", 3, 3, 1, 3, Q("8 mm")))
sketch8.addConstraint(Sketcher.Constraint("DistanceX", 5, 3, 3, 3, Q("8 mm")))
sketch8.addConstraint(Sketcher.Constraint("Radius", 1, Q("2.684223 mm")))
sketch8.addConstraint(Sketcher.Constraint("DistanceX", -1, 1, 1, 1, Q("0.3674 mm")))
pocket2 = body.newObject("PartDesign::Pocket", "Pocket001")
pocket2.Profile = sketch8
pocket2.Type = "ThroughAll"

doc.recompute()
